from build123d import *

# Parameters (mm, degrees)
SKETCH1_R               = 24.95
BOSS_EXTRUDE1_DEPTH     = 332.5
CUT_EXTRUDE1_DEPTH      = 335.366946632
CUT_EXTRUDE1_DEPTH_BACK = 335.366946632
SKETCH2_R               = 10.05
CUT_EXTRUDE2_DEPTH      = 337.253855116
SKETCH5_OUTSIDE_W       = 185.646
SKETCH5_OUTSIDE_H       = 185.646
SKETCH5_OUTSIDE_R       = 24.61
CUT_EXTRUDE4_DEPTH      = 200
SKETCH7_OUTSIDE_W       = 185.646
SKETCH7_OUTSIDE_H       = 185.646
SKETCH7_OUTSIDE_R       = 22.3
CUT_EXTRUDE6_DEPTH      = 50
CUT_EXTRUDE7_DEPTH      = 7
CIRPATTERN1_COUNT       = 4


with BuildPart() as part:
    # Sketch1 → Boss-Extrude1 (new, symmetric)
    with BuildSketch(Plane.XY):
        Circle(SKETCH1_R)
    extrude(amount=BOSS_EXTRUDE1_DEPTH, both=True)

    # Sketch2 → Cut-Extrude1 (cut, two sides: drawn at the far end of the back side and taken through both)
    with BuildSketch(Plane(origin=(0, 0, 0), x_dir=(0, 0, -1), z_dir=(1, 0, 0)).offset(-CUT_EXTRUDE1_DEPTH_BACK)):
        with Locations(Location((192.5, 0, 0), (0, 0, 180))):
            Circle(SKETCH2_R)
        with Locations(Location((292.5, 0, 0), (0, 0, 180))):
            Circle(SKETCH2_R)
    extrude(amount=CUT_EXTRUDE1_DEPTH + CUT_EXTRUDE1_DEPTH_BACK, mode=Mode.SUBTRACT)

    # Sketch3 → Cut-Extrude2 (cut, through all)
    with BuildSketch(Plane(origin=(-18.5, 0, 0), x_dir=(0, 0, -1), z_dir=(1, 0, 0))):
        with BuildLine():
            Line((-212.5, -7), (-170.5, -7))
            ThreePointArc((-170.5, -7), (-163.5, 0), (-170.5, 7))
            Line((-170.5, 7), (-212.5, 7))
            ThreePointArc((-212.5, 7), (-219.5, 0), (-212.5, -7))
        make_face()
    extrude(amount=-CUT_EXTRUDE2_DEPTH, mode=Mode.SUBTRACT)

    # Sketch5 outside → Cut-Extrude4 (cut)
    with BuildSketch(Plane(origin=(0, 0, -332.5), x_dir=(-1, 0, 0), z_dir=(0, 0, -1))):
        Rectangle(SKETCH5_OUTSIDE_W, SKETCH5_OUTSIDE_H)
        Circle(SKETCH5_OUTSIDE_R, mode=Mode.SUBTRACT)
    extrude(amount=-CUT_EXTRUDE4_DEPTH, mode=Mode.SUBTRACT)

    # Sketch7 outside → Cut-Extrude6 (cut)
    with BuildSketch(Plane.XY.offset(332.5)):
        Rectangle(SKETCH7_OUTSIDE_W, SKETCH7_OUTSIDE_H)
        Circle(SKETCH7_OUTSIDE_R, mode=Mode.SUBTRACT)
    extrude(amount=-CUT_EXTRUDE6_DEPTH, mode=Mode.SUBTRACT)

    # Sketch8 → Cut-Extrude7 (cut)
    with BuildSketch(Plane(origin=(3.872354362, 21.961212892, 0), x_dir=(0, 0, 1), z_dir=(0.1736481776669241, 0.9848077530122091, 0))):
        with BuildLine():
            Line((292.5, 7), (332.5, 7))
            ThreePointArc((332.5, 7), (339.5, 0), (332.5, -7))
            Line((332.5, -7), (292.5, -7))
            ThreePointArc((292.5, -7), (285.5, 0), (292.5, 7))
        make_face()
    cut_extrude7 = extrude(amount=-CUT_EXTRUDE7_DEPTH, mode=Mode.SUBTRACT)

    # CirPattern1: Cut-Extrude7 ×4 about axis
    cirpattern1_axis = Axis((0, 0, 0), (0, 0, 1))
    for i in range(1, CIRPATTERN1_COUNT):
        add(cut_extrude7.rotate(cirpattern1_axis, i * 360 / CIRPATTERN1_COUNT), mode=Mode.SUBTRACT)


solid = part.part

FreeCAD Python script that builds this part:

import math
import FreeCAD as App
import Part
import Sketcher
from FreeCAD import Vector
Q = App.Units.Quantity


def add_polygon(sketch, points):
    """Adds a closed chain of lines whose ends are joined by coincident constraints."""
    first, n = sketch.GeometryCount, len(points)
    for a, b in zip(points, points[1:] + points[:1]):
        sketch.addGeometry(Part.LineSegment(App.Vector(*a, 0), App.Vector(*b, 0)), False)
    for i in range(n):
        sketch.addConstraint(Sketcher.Constraint("Coincident", first + i, 2, first + (i + 1) % n, 1))

doc = App.newDocument("Part")
params = doc.addObject("Spreadsheet::Sheet", "Params")
for row, (alias, value) in enumerate([
    ("sketch1_diameter", "49.9 mm"),
    ("pad1_length", "665 mm"),
    ("sketch2_diameter", "20.1 mm"),
    ("sketch3_radius", "7 mm"),
    ("sketch3_height", "42 mm"),
    ("sketch4_diameter", "49.22 mm"),
    ("pocket3_length", "200 mm"),
    ("sketch5_diameter", "44.6 mm"),
    ("pocket4_length", "50 mm"),
    ("sketch6_radius", "7 mm"),
    ("sketch6_width", "40 mm"),
    ("pocket5_length", "7 mm"),
], start=1):
    params.set(f"A{row}", alias)
    params.set(f"B{row}", "=" + value)
    params.setAlias(f"B{row}", alias)

body = doc.addObject("PartDesign::Body", "Body")

sketch1 = body.newObject("Sketcher::SketchObject", "Sketch")
sketch1.AttachmentSupport = (doc.getObject("XY_Plane"), [""])
sketch1.MapMode = "FlatFace"
sketch1.addGeometry(Part.Circle(Vector(0, 0, 0), Vector(0, 0, 1), 25), False)
sketch1.addConstraint(Sketcher.Constraint("Coincident", 0, 3, -1, 1))
sketch1.addConstraint(Sketcher.Constraint("Diameter", 0, Q("49.9 mm")))
sketch1.setExpression("Constraints[1]", "Params.sketch1_diameter")
pad1 = body.newObject("PartDesign::Pad", "Pad")
pad1.Profile = sketch1
pad1.setExpression("Length", "Params.pad1_length")
pad1.Midplane = True

sketch2 = body.newObject("Sketcher::SketchObject", "Sketch001")
sketch2.AttachmentSupport = (doc.getObject("YZ_Plane"), [""])
sketch2.MapMode = "FlatFace"
sketch2.addGeometry(Part.Circle(Vector(0, -192, 0), Vector(0, 0, 1), 10), False)
sketch2.addGeometry(Part.Circle(Vector(0, -292, 0), Vector(0, 0, 1), 10), False)
sketch2.addConstraint(Sketcher.Constraint("Equal", 0, 1))
sketch2.addConstraint(Sketcher.Constraint("PointOnObject", 0, 3, -2))
sketch2.addConstraint(Sketcher.Constraint("PointOnObject", 1, 3, -2))
sketch2.addConstraint(Sketcher.Constraint("Diameter", 0, Q("20.1 mm")))
sketch2.addConstraint(Sketcher.Constraint("DistanceY", 1, 3, 0, 3, Q("100 mm")))
sketch2.addConstraint(Sketcher.Constraint("DistanceY", 0, 3, -1, 1, Q("192.5 mm")))
sketch2.setExpression("Constraints[3]", "Params.sketch2_diameter")
pocket1 = body.newObject("PartDesign::Pocket", "Pocket")
pocket1.Profile = sketch2
pocket1.Type = "ThroughAll"
pocket1.Midplane = True

sketch3 = body.newObject("Sketcher::SketchObject", "Sketch002")
sketch3.AttachmentSupport = (doc.getObject("YZ_Plane"), [""])
sketch3.MapMode = "FlatFace"
sketch3.AttachmentOffset = App.Placement(Vector(0, 0, -18.5), App.Rotation())
sketch3.addGeometry(Part.LineSegment(Vector(-7, 212, 0), Vector(-7, 170, 0)), False)
sketch3.addGeometry(Part.ArcOfCircle(Part.Circle(Vector(0, 170, 0), Vector(0, 0, 1), 7), math.radians(180), math.radians(360)), False)
sketch3.addGeometry(Part.LineSegment(Vector(7, 170, 0), Vector(7, 212, 0)), False)
sketch3.addGeometry(Part.ArcOfCircle(Part.Circle(Vector(0, 212, 0), Vector(0, 0, 1), 7), math.radians(0), math.radians(180)), False)
sketch3.addConstraint(Sketcher.Constraint("Tangent", 0, 2, 1, 1))
sketch3.addConstraint(Sketcher.Constraint("Tangent", 1, 2, 2, 1))
sketch3.addConstraint(Sketcher.Constraint("Tangent", 2, 2, 3, 1))
sketch3.addConstraint(Sketcher.Constraint("Tangent", 3, 2, 0, 1))
sketch3.addConstraint(Sketcher.Constraint("Vertical", 0))
sketch3.addConstraint(Sketcher.Constraint("Vertical", 2))
sketch3.addConstraint(Sketcher.Constraint("PointOnObject", 1, 3, -2))
sketch3.addConstraint(Sketcher.Constraint("Radius", 1, Q("7 mm")))
sketch3.addConstraint(Sketcher.Constraint("DistanceY", 0, 2, 0, 1, Q("42 mm")))
sketch3.addConstraint(Sketcher.Constraint("DistanceY", -1, 1, 1, 3, Q("170.5 mm")))
sketch3.setExpression("Constraints[7]", "Params.sketch3_radius")
sketch3.setExpression("Constraints[8]", "Params.sketch3_height")
pocket2 = body.newObject("PartDesign::Pocket", "Pocket001")
pocket2.Profile = sketch3
pocket2.Type = "ThroughAll"

sketch4 = body.newObject("Sketcher::SketchObject", "Sketch003")
sketch4.AttachmentSupport = (doc.getObject("XY_Plane"), [""])
sketch4.MapMode = "FlatFace"
sketch4.AttachmentOffset = App.Placement(Vector(0, 0, -332.5), App.Rotation())
add_polygon(sketch4, [(93, 93), (93, -93), (-93, -93), (-93, 93)])
sketch4.addGeometry(Part.Circle(Vector(0, 0, 0), Vector(0, 0, 1), 25), False)
sketch4.addConstraint(Sketcher.Constraint("Vertical", 0))
sketch4.addConstraint(Sketcher.Constraint("Horizontal", 1))
sketch4.addConstraint(Sketcher.Constraint("Vertical", 2))
sketch4.addConstraint(Sketcher.Constraint("Horizontal", 3))
sketch4.addConstraint(Sketcher.Constraint("Coincident", 4, 3, -1, 1))
sketch4.addConstraint(Sketcher.Constraint("Symmetric", 0, 2, 2, 2, -1, 1))
sketch4.addConstraint(Sketcher.Constraint("Equal", 3, 0))
sketch4.addConstraint(Sketcher.Constraint("Diameter", 4, Q("49.22 mm")))
sketch4.addConstraint(Sketcher.Constraint("DistanceX", 1, 2, 1, 1, Q("185.646 mm")))
sketch4.setExpression("Constraints[11]", "Params.sketch4_diameter")
pocket3 = body.newObject("PartDesign::Pocket", "Pocket002")
pocket3.Profile = sketch4
pocket3.setExpression("Length", "Params.pocket3_length")
pocket3.Reversed = True

sketch5 = body.newObject("Sketcher::SketchObject", "Sketch004")
sketch5.AttachmentSupport = (doc.getObject("XY_Plane"), [""])
sketch5.MapMode = "FlatFace"
sketch5.AttachmentOffset = App.Placement(Vector(0, 0, 332.5), App.Rotation())
add_polygon(sketch5, [(-93, 93), (-93, -93), (93, -93), (93, 93)])
sketch5.addGeometry(Part.Circle(Vector(0, 0, 0), Vector(0, 0, 1), 22), False)
sketch5.addConstraint(Sketcher.Constraint("Vertical", 0))
sketch5.addConstraint(Sketcher.Constraint("Horizontal", 1))
sketch5.addConstraint(Sketcher.Constraint("Vertical", 2))
sketch5.addConstraint(Sketcher.Constraint("Horizontal", 3))
sketch5.addConstraint(Sketcher.Constraint("Coincident", 4, 3, -1, 1))
sketch5.addConstraint(Sketcher.Constraint("Symmetric", 0, 2, 2, 2, -1, 1))
sketch5.addConstraint(Sketcher.Constraint("Equal", 3, 0))
sketch5.addConstraint(Sketcher.Constraint("Diameter", 4, Q("44.6 mm")))
sketch5.addConstraint(Sketcher.Constraint("DistanceX", 1, 1, 1, 2, Q("185.646 mm")))
sketch5.setExpression("Constraints[11]", "Params.sketch5_diameter")
pocket4 = body.newObject("PartDesign::Pocket", "Pocket003")
pocket4.Profile = sketch5
pocket4.setExpression("Length", "Params.pocket4_length")

sketch6 = body.newObject("Sketcher::SketchObject", "Sketch005")
sketch6.Placement = App.Placement(Vector(3.872354, 21.961213, 0), App.Rotation(Vector(0, 0, 1), Vector(0.984807753, -0.173648178, 0), Vector(0.173648178, 0.984807753, 0), "ZXY"))
sketch6.addGeometry(Part.LineSegment(Vector(332, 7, 0), Vector(292, 7, 0)), False)
sketch6.addGeometry(Part.ArcOfCircle(Part.Circle(Vector(292, 0, 0), Vector(0, 0, 1), 7), math.radians(90), math.radians(270)), False)
sketch6.addGeometry(Part.LineSegment(Vector(292, -7, 0), Vector(332, -7, 0)), False)
sketch6.addGeometry(Part.ArcOfCircle(Part.Circle(Vector(332, 0, 0), Vector(0, 0, 1), 7), math.radians(-90), math.radians(90)), False)
sketch6.addConstraint(Sketcher.Constraint("Tangent", 0, 2, 1, 1))
sketch6.addConstraint(Sketcher.Constraint("Tangent", 1, 2, 2, 1))
sketch6.addConstraint(Sketcher.Constraint("Tangent", 2, 2, 3, 1))
sketch6.addConstraint(Sketcher.Constraint("Tangent", 3, 2, 0, 1))
sketch6.addConstraint(Sketcher.Constraint("Horizontal", 0))
sketch6.addConstraint(Sketcher.Constraint("Horizontal", 2))
sketch6.addConstraint(Sketcher.Constraint("PointOnObject", 1, 3, -1))
sketch6.addConstraint(Sketcher.Constraint("Radius", 1, Q("7 mm")))
sketch6.addConstraint(Sketcher.Constraint("DistanceX", 0, 2, 0, 1, Q("40 mm")))
sketch6.addConstraint(Sketcher.Constraint("DistanceX", -1, 1, 1, 3, Q("292.5 mm")))
sketch6.setExpression("Constraints[7]", "Params.sketch6_radius")
sketch6.setExpression("Constraints[8]", "Params.sketch6_width")
pocket5 = body.newObject("PartDesign::Pocket", "Pocket004")
pocket5.Profile = sketch6
pocket5.setExpression("Length", "Params.pocket5_length")
doc.recompute()

polarpattern = body.newObject("PartDesign::PolarPattern", "PolarPattern")
polarpattern.Originals = [pocket5]
polarpattern.Axis = (doc.getObject("Z_Axis"), [""])
polarpattern.Angle = 360
polarpattern.Occurrences = 4
body.Tip = polarpattern

doc.recompute()
